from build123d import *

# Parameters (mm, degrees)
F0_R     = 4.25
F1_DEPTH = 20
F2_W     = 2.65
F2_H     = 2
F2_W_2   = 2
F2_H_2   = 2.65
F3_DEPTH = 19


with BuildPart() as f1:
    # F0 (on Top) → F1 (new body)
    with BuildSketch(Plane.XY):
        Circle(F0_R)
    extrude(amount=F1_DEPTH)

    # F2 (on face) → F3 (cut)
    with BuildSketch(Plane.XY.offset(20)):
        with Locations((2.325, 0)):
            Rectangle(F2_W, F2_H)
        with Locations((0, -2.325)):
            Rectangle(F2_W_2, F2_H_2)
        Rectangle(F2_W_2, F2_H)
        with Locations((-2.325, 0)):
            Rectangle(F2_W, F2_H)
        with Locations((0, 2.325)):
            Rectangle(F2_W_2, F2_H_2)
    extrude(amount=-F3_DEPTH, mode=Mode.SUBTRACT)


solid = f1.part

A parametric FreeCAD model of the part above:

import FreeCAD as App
import Part
import Sketcher

V = App.Vector


def add_polygon(sketch, points):
    """Adds a closed chain of lines whose ends are joined by coincident constraints."""
    first, n = sketch.GeometryCount, len(points)
    for a, b in zip(points, points[1:] + points[:1]):
        sketch.addGeometry(Part.LineSegment(App.Vector(*a, 0), App.Vector(*b, 0)), False)
    for i in range(n):
        sketch.addConstraint(Sketcher.Constraint("Coincident", first + i, 2, first + (i + 1) % n, 1))

doc = App.newDocument("Part")
body = doc.addObject("PartDesign::Body", "Body")

# Sketch on XY plane
sketch1 = body.newObject("Sketcher::SketchObject", "Sketch")
sketch1.AttachmentSupport = (doc.getObject("XY_Plane"), [""])
sketch1.MapMode = "FlatFace"
sketch1.addGeometry(Part.Circle(V(0, 0, 0), V(0, 0, 1), 4.25), False)
sketch1.addConstraint([
    Sketcher.Constraint("Coincident", 0, 3, -1, 1),
    Sketcher.Constraint("Diameter", 0, 8.5),
])
pad1 = body.newObject("PartDesign::Pad", "Pad")
pad1.Profile = sketch1
pad1.Length = 20

# Sketch on XY plane
sketch2 = body.newObject("Sketcher::SketchObject", "Sketch001")
sketch2.AttachmentSupport = (doc.getObject("XY_Plane"), [""])
sketch2.MapMode = "FlatFace"
sketch2.AttachmentOffset = App.Placement(V(0, 0, 20), App.Rotation())
add_polygon(sketch2, [(1, -3.65), (1, -1), (3.65, -1), (3.65, 1), (1, 1), (1, 3.65), (-1, 3.65), (-1, 1), (-3.65, 1), (-3.65, -1), (-1, -1), (-1, -3.65)])  # lines 0-11
sketch2.addConstraint([
    Sketcher.Constraint("Vertical", 0),
    Sketcher.Constraint("Horizontal", 1),
    Sketcher.Constraint("Vertical", 2),
    Sketcher.Constraint("Horizontal", 3),
    Sketcher.Constraint("Vertical", 4),
    Sketcher.Constraint("Horizontal", 5),
    Sketcher.Constraint("Vertical", 6),
    Sketcher.Constraint("Horizontal", 7),
    Sketcher.Constraint("Vertical", 8),
    Sketcher.Constraint("Horizontal", 9),
    Sketcher.Constraint("Vertical", 10),
    Sketcher.Constraint("Horizontal", 11),
    Sketcher.Constraint("Symmetric", 0, 2, 6, 2, -1, 1),
    Sketcher.Constraint("Symmetric", 2, 2, 8, 2, -1, 1),
    Sketcher.Constraint("Symmetric", 4, 2, 10, 2, -1, 1),
    Sketcher.Constraint("Symmetric", 3, 2, 6, 2, -2),
    Sketcher.Constraint("Equal", 9, 0),
    Sketcher.Constraint("Equal", 11, 2),
    Sketcher.Constraint("DistanceX", 5, 2, 5, 1, 2.0),
    Sketcher.Constraint("DistanceX", 1, 1, 1, 2, 2.65),
])
pocket1 = body.newObject("PartDesign::Pocket", "Pocket")
pocket1.Profile = sketch2
pocket1.Length = 19

doc.recompute()
